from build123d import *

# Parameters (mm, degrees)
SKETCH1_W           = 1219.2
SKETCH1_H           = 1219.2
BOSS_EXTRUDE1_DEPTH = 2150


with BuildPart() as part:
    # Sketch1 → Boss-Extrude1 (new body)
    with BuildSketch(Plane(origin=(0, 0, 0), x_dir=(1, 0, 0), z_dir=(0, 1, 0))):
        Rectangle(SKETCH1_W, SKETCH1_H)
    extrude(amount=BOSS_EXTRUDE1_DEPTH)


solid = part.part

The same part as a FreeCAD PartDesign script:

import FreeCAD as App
import Part
import Sketcher

V = App.Vector


def add_polygon(sketch, points):
    """Adds a closed chain of lines whose ends are joined by coincident constraints."""
    first, n = sketch.GeometryCount, len(points)
    for a, b in zip(points, points[1:] + points[:1]):
        sketch.addGeometry(Part.LineSegment(App.Vector(*a, 0), App.Vector(*b, 0)), False)
    for i in range(n):
        sketch.addConstraint(Sketcher.Constraint("Coincident", first + i, 2, first + (i + 1) % n, 1))

doc = App.newDocument("Part")
body = doc.addObject("PartDesign::Body", "Body")

# Sketch on XZ plane
sketch1 = body.newObject("Sketcher::SketchObject", "Sketch")
sketch1.AttachmentSupport = (doc.getObject("XZ_Plane"), [""])
sketch1.MapMode = "FlatFace"
add_polygon(sketch1, [(-610, -610), (-610, 610), (610, 610), (610, -610)])  # lines 0-3
sketch1.addConstraint(Sketcher.Constraint("Vertical", 0))
sketch1.addConstraint(Sketcher.Constraint("Horizontal", 1))
sketch1.addConstraint(Sketcher.Constraint("Vertical", 2))
sketch1.addConstraint(Sketcher.Constraint("Horizontal", 3))
sketch1.addConstraint(Sketcher.Constraint("Symmetric", 0, 2, 2, 2, -1, 1))
sketch1.addConstraint(Sketcher.Constraint("Equal", 3, 0))
sketch1.addConstraint(Sketcher.Constraint("DistanceX", 1, 1, 1, 2, 1219.2))
pad1 = body.newObject("PartDesign::Pad", "Pad")
pad1.Profile = sketch1
pad1.Length = 2150
pad1.Reversed = True

doc.recompute()
